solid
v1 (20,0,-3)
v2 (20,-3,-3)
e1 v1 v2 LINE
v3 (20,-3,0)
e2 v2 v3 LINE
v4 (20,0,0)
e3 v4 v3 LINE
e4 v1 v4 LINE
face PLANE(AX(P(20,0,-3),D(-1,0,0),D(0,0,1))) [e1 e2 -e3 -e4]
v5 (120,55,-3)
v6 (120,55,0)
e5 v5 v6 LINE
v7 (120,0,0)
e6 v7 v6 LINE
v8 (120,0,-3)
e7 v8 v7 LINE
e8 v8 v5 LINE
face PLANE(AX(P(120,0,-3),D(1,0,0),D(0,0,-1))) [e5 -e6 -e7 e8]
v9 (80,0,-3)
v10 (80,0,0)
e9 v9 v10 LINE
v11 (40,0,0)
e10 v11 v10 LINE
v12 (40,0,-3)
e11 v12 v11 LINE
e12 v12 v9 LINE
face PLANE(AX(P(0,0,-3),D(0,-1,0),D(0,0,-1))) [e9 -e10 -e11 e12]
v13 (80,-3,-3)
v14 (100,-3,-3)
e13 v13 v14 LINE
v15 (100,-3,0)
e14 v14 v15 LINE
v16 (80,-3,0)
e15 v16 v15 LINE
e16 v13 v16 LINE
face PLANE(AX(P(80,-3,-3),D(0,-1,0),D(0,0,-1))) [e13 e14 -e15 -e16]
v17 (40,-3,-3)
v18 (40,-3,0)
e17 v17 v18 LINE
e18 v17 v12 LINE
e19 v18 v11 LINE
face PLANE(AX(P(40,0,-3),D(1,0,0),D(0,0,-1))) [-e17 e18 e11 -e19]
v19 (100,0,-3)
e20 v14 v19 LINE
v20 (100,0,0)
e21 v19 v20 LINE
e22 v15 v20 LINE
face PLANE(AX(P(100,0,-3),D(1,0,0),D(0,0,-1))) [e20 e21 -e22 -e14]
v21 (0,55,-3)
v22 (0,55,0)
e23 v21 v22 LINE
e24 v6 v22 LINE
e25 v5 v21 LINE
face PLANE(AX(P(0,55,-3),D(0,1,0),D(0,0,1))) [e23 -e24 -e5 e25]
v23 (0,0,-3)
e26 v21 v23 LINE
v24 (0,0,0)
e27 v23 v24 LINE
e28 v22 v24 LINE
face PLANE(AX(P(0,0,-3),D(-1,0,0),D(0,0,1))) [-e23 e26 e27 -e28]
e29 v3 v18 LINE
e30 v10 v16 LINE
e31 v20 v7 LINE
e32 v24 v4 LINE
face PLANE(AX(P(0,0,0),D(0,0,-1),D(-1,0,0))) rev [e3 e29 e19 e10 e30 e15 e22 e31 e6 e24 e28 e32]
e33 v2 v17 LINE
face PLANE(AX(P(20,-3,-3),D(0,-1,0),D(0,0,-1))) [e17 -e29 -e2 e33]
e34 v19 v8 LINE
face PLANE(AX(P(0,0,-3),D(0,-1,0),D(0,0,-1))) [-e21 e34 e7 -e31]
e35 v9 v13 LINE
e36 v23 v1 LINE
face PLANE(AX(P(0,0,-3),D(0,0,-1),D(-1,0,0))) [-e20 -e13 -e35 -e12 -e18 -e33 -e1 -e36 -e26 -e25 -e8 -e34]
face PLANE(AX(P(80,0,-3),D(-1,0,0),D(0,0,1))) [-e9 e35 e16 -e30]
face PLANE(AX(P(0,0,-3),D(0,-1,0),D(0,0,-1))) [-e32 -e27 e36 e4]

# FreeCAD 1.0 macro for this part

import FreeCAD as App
import Part
import Sketcher


def add_polygon(sketch, points):
    """Adds a closed chain of lines whose ends are joined by coincident constraints."""
    first, n = sketch.GeometryCount, len(points)
    for a, b in zip(points, points[1:] + points[:1]):
        sketch.addGeometry(Part.LineSegment(App.Vector(*a, 0), App.Vector(*b, 0)), False)
    for i in range(n):
        sketch.addConstraint(Sketcher.Constraint("Coincident", first + i, 2, first + (i + 1) % n, 1))

doc = App.newDocument("Part")
body = doc.addObject("PartDesign::Body", "Body")

# Sketch on XY plane
sketch1 = body.newObject("Sketcher::SketchObject", "Sketch")
sketch1.AttachmentSupport = (doc.getObject("XY_Plane"), [""])
sketch1.MapMode = "FlatFace"
add_polygon(sketch1, [(0, 55), (0, 0), (120, 0), (120, 55)])  # lines 0-3
sketch1.addConstraint([
    Sketcher.Constraint("Vertical", 0),
    Sketcher.Constraint("Horizontal", 1),
    Sketcher.Constraint("Vertical", 2),
    Sketcher.Constraint("Horizontal", 3),
    Sketcher.Constraint("Coincident", 0, 2, -1, 1),
    Sketcher.Constraint("DistanceX", 1, 1, 1, 2, 120.0),
    Sketcher.Constraint("DistanceY", 0, 2, 0, 1, 55.0),
])
pad1 = body.newObject("PartDesign::Pad", "Pad")
pad1.Profile = sketch1
pad1.Length = 3
pad1.Reversed = True

# Sketch on XY plane
sketch2 = body.newObject("Sketcher::SketchObject", "Sketch001")
sketch2.AttachmentSupport = (doc.getObject("XY_Plane"), [""])
sketch2.MapMode = "FlatFace"
add_polygon(sketch2, [(20, 0), (20, -3), (40, -3), (40, 0)])  # lines 0-3
add_polygon(sketch2, [(80, 0), (80, -3), (100, -3), (100, 0)])  # lines 4-7
sketch2.addConstraint([
    Sketcher.Constraint("Vertical", 0),
    Sketcher.Constraint("Horizontal", 1),
    Sketcher.Constraint("Vertical", 2),
    Sketcher.Constraint("Horizontal", 3),
    Sketcher.Constraint("Vertical", 4),
    Sketcher.Constraint("Horizontal", 5),
    Sketcher.Constraint("Vertical", 6),
    Sketcher.Constraint("Horizontal", 7),
    Sketcher.Constraint("PointOnObject", 2, 2, -1),
    Sketcher.Constraint("PointOnObject", 6, 2, -1),
    Sketcher.Constraint("Horizontal", 1, 2, 4, 2),
    Sketcher.Constraint("Equal", 3, 5),
    Sketcher.Constraint("DistanceX", 1, 1, 1, 2, 20.0),
    Sketcher.Constraint("DistanceY", 0, 2, 0, 1, 3.0),
    Sketcher.Constraint("DistanceX", -1, 1, 0, 2, 20.0),
    Sketcher.Constraint("DistanceX", -1, 1, 4, 2, 80.0),
])
pad2 = body.newObject("PartDesign::Pad", "Pad001")
pad2.Profile = sketch2
pad2.Length = 3
pad2.Reversed = True

doc.recompute()
